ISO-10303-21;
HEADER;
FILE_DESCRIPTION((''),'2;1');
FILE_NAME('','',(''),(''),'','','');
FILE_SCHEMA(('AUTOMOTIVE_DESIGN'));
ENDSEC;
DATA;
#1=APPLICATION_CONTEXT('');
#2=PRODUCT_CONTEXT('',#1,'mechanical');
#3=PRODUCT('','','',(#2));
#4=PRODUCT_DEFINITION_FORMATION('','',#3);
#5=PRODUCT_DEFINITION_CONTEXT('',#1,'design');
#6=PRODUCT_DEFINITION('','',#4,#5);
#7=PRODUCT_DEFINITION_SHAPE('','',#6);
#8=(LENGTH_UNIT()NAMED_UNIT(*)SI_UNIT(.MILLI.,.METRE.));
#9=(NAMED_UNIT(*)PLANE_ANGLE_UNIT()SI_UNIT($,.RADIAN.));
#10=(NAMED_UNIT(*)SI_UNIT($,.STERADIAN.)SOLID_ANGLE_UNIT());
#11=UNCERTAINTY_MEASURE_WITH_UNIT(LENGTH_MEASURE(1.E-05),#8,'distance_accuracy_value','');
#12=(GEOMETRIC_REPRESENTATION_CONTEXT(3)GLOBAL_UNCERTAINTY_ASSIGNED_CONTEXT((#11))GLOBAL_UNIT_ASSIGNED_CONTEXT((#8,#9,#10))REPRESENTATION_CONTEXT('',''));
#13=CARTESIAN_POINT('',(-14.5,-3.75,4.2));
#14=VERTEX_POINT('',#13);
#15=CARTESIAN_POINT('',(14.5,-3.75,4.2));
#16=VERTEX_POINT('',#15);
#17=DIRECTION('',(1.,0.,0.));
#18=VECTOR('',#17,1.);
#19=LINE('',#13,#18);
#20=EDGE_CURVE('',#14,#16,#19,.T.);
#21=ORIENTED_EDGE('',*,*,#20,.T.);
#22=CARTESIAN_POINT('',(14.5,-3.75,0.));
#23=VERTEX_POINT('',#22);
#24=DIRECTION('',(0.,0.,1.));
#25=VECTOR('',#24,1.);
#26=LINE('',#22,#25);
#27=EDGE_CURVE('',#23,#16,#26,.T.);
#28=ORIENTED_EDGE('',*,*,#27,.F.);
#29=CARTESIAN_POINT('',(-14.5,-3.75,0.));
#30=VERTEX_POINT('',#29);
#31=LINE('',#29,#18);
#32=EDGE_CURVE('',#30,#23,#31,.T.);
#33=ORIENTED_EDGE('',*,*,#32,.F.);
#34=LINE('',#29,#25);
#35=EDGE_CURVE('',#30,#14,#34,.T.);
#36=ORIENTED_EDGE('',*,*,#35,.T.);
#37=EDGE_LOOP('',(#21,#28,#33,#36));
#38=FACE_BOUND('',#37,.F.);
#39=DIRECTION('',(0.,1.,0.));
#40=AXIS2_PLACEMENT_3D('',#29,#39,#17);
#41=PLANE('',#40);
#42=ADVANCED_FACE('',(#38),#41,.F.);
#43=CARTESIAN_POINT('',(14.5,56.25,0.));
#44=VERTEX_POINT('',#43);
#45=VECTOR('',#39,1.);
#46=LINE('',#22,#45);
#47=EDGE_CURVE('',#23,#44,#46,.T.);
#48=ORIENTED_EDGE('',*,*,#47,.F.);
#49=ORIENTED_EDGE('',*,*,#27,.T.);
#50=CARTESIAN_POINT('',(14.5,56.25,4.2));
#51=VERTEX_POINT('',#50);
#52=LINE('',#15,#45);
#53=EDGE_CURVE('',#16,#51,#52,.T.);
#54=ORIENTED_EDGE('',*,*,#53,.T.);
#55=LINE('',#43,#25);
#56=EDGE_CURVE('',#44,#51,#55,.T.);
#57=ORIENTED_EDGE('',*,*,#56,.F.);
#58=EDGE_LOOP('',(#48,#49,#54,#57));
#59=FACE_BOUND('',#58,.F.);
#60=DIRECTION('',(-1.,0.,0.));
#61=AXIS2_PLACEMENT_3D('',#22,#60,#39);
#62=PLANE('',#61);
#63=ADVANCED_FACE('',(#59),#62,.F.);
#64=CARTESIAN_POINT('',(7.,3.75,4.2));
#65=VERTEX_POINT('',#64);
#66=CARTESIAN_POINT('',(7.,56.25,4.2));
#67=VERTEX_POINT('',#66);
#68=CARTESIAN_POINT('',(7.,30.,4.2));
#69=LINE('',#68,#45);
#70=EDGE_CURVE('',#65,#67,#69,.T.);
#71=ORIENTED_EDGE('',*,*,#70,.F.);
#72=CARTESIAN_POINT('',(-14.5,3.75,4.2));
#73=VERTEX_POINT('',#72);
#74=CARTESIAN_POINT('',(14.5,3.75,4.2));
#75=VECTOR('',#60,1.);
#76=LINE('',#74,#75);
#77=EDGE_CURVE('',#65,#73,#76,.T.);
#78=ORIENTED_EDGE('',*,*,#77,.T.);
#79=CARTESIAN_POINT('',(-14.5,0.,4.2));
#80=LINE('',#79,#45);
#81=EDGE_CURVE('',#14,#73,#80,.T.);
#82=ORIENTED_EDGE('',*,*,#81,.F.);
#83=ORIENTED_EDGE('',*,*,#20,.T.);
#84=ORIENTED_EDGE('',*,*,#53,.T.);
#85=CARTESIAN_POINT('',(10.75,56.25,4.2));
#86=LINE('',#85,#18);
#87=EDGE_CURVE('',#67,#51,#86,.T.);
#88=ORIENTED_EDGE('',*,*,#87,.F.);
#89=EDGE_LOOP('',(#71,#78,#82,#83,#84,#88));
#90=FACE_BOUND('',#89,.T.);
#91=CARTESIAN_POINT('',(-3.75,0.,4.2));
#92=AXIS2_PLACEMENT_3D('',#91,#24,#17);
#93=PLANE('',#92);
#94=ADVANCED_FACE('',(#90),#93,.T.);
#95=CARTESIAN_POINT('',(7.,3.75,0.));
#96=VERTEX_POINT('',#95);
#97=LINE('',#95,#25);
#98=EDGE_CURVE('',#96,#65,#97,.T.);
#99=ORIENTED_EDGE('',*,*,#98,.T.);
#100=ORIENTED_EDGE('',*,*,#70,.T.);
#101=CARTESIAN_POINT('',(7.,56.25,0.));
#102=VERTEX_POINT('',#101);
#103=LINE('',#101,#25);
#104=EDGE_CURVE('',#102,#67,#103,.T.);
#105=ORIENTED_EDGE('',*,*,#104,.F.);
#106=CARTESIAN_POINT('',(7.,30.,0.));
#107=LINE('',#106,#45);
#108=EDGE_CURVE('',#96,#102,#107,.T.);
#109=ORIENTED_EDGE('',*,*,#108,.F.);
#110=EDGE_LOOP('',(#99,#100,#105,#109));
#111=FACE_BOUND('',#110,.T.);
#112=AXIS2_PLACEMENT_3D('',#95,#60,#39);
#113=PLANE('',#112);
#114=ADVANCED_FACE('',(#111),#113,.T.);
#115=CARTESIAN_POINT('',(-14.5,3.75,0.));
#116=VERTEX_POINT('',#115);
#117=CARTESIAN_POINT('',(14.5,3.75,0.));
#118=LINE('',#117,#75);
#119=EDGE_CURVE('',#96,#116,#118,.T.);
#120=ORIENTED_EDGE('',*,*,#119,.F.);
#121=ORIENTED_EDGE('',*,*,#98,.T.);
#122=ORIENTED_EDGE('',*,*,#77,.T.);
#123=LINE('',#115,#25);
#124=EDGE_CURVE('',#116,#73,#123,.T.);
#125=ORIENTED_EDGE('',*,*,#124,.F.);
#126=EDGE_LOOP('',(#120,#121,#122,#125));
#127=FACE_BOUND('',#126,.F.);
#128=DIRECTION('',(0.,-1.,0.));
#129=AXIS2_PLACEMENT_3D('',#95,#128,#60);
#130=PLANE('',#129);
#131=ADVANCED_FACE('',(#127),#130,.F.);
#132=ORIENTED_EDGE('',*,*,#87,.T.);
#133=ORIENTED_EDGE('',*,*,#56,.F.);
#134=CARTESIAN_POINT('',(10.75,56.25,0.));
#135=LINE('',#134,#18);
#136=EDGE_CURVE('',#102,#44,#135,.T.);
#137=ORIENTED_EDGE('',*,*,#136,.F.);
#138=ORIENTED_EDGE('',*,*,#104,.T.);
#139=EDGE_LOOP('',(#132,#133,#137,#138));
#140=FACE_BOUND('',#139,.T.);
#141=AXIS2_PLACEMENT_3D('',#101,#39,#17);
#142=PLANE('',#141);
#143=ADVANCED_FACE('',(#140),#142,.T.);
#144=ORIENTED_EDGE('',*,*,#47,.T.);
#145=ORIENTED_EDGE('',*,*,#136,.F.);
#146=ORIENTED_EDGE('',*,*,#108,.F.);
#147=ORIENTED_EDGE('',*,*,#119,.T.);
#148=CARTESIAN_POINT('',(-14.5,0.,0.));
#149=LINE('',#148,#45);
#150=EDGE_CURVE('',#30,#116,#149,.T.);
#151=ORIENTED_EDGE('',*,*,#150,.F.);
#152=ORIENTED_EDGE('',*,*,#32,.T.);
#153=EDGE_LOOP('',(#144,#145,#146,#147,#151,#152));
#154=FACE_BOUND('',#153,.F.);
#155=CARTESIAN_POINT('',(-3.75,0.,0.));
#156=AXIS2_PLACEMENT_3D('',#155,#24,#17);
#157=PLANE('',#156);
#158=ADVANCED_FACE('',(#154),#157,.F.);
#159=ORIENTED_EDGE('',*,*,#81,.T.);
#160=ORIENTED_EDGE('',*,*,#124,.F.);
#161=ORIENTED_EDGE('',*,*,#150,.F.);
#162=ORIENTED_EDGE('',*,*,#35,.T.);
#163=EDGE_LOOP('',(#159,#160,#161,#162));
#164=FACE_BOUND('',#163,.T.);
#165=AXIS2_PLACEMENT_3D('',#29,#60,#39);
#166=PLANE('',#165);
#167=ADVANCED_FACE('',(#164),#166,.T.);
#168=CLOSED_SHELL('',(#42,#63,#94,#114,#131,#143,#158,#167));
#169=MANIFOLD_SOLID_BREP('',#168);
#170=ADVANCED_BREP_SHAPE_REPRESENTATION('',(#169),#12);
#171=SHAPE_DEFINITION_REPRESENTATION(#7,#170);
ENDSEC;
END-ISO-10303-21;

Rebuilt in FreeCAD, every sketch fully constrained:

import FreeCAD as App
import Part
import Sketcher

V = App.Vector

doc = App.newDocument("Part")
params = doc.addObject("Spreadsheet::Sheet", "Params")
for row, (alias, value) in enumerate([
    ("sketch1_width", "29 mm"),
    ("sketch1_height", "60 mm"),
    ("sketch1_width2", "7.5 mm"),
    ("pad1_length", "4.2 mm"),
], start=1):
    params.set(f"A{row}", alias)
    params.set(f"B{row}", "=" + value)
    params.setAlias(f"B{row}", alias)

body = doc.addObject("PartDesign::Body", "Body")

# Sketch on XY plane
sketch1 = body.newObject("Sketcher::SketchObject", "Sketch")
sketch1.AttachmentSupport = (doc.getObject("XY_Plane"), [""])
sketch1.MapMode = "FlatFace"
sketch1.addGeometry(Part.LineSegment(V(-14, 4, 0), V(-14, -4, 0)), False)
sketch1.addGeometry(Part.LineSegment(V(-14, -4, 0), V(14, -4, 0)), False)
sketch1.addGeometry(Part.LineSegment(V(14, -4, 0), V(14, 56, 0)), False)
sketch1.addGeometry(Part.LineSegment(V(14, 56, 0), V(7, 56, 0)), False)
sketch1.addGeometry(Part.LineSegment(V(7, 56, 0), V(7, 4, 0)), False)
sketch1.addGeometry(Part.LineSegment(V(7, 4, 0), V(-14, 4, 0)), False)
sketch1.addConstraint(Sketcher.Constraint("Coincident", 0, 2, 1, 1))
sketch1.addConstraint(Sketcher.Constraint("Coincident", 1, 2, 2, 1))
sketch1.addConstraint(Sketcher.Constraint("Coincident", 2, 2, 3, 1))
sketch1.addConstraint(Sketcher.Constraint("Coincident", 3, 2, 4, 1))
sketch1.addConstraint(Sketcher.Constraint("Coincident", 4, 2, 5, 1))
sketch1.addConstraint(Sketcher.Constraint("Coincident", 5, 2, 0, 1))
sketch1.addConstraint(Sketcher.Constraint("Vertical", 0))
sketch1.addConstraint(Sketcher.Constraint("Horizontal", 1))
sketch1.addConstraint(Sketcher.Constraint("Vertical", 2))
sketch1.addConstraint(Sketcher.Constraint("Horizontal", 3))
sketch1.addConstraint(Sketcher.Constraint("Vertical", 4))
sketch1.addConstraint(Sketcher.Constraint("Horizontal", 5))
sketch1.addConstraint(Sketcher.Constraint("Symmetric", 1, 2, 5, 2, -1, 1))
sketch1.addConstraint(Sketcher.Constraint("Equal", 3, 0))
sketch1.addConstraint(Sketcher.Constraint("DistanceX", 1, 1, 1, 2, 29.0))
sketch1.addConstraint(Sketcher.Constraint("DistanceY", 2, 1, 2, 2, 60.0))
sketch1.addConstraint(Sketcher.Constraint("DistanceX", 3, 2, 3, 1, 7.5))
sketch1.setExpression("Constraints[14]", "Params.sketch1_width")
sketch1.setExpression("Constraints[15]", "Params.sketch1_height")
sketch1.setExpression("Constraints[16]", "Params.sketch1_width2")
pad1 = body.newObject("PartDesign::Pad", "Pad")
pad1.Profile = sketch1
pad1.setExpression("Length", "Params.pad1_length")

doc.recompute()
